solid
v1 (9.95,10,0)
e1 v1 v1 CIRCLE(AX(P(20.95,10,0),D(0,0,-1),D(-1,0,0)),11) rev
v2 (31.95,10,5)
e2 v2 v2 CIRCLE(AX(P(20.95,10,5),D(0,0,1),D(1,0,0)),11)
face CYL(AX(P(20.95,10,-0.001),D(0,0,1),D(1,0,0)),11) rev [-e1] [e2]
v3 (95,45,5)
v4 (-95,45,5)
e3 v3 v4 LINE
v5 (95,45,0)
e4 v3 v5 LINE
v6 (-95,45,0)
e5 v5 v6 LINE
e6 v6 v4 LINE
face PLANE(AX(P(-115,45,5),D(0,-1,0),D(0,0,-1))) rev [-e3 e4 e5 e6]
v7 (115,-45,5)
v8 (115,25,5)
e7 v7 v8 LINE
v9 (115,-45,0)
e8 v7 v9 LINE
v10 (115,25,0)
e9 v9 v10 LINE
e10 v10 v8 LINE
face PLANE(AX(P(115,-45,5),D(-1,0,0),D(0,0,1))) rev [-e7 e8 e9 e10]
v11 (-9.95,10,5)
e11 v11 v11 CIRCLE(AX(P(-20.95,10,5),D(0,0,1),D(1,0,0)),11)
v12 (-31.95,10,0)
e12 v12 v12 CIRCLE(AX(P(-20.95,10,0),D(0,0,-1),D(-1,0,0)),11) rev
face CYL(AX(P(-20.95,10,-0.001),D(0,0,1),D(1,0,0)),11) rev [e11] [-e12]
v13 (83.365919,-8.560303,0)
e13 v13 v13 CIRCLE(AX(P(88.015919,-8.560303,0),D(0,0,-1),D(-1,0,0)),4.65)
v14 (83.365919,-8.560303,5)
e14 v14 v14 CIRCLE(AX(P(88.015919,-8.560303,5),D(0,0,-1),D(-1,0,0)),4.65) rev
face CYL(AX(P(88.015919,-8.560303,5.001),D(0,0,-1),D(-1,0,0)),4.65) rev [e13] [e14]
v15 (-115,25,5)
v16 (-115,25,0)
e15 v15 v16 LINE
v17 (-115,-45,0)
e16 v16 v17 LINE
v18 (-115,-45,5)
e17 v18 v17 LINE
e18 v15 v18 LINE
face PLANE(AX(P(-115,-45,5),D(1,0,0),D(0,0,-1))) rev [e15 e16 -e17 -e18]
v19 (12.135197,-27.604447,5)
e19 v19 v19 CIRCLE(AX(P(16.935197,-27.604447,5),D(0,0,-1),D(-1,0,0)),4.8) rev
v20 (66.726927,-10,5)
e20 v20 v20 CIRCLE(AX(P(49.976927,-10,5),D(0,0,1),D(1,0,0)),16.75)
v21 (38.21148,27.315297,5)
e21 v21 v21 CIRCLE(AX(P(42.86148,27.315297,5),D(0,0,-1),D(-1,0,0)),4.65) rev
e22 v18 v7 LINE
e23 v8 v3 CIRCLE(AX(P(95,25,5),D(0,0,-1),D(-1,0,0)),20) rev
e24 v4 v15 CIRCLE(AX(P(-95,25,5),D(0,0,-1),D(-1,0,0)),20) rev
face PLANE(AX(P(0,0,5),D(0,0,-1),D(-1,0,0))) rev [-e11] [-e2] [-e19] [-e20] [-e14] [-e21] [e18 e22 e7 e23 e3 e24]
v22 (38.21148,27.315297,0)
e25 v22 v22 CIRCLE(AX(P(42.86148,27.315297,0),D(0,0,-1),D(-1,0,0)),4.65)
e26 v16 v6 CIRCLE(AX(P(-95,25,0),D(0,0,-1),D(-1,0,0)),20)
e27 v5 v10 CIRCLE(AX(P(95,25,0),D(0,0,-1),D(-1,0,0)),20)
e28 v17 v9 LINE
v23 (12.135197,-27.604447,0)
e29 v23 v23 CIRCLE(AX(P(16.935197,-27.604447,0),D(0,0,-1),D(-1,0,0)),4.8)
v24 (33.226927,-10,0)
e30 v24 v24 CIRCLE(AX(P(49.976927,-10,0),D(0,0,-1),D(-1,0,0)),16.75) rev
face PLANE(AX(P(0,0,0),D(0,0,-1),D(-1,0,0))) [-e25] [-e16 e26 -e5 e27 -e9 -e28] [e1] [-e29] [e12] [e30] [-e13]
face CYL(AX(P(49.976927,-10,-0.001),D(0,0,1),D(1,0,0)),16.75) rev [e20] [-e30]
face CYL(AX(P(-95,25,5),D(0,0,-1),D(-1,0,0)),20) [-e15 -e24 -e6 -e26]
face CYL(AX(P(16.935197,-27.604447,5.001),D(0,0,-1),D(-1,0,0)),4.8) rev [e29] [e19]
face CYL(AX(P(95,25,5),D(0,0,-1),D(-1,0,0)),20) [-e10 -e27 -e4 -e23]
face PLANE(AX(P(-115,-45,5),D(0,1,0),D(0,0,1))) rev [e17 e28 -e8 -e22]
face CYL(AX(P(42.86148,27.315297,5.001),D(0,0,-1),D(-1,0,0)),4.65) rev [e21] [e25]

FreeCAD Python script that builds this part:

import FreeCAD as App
import Part
import Sketcher
Q = App.Units.Quantity


def edges_at(feature, points):
    """Names of the edges that pass closest to the given points."""
    edges = feature.Shape.Edges
    near = lambda p: min(range(len(edges)), key=lambda i: edges[i].distToShape(Part.Vertex(*p))[0])
    return sorted({f"Edge{near(p) + 1}" for p in points})


def add_polygon(sketch, points):
    """Adds a closed chain of lines whose ends are joined by coincident constraints."""
    first, n = sketch.GeometryCount, len(points)
    for a, b in zip(points, points[1:] + points[:1]):
        sketch.addGeometry(Part.LineSegment(App.Vector(*a, 0), App.Vector(*b, 0)), False)
    for i in range(n):
        sketch.addConstraint(Sketcher.Constraint("Coincident", first + i, 2, first + (i + 1) % n, 1))

doc = App.newDocument("Part")
body = doc.addObject("PartDesign::Body", "Body")

# Sketch on XY plane
sketch1 = body.newObject("Sketcher::SketchObject", "Sketch")
sketch1.AttachmentSupport = (doc.getObject("XY_Plane"), [""])
sketch1.MapMode = "FlatFace"
add_polygon(sketch1, [(-115, 45), (-115, -45), (115, -45), (115, 45)])  # lines 0-3
sketch1.addConstraint([
    Sketcher.Constraint("Vertical", 0),
    Sketcher.Constraint("Horizontal", 1),
    Sketcher.Constraint("Vertical", 2),
    Sketcher.Constraint("Horizontal", 3),
    Sketcher.Constraint("Symmetric", 0, 2, 2, 2, -1, 1),
    Sketcher.Constraint("DistanceX", 1, 1, 1, 2, Q("230 mm")),
    Sketcher.Constraint("DistanceY", 0, 2, 0, 1, Q("90 mm")),
])
pad1 = body.newObject("PartDesign::Pad", "Pad")
pad1.Profile = sketch1
pad1.Length = 5
doc.recompute()

fillet = body.newObject("PartDesign::Fillet", "Fillet")
fillet.Base = (pad1, edges_at(pad1, [(-115, 45, 2.5), (115, 45, 2.5)]))
fillet.Radius = 20

# Sketch on XY plane
sketch2 = body.newObject("Sketcher::SketchObject", "Sketch001")
sketch2.AttachmentSupport = (doc.getObject("XY_Plane"), [""])
sketch2.MapMode = "FlatFace"
sketch2.AttachmentOffset = App.Placement(App.Vector(0, 0, 5), App.Rotation())
sketch2.addGeometry(Part.Circle(App.Vector(-20.95, 10, 0), App.Vector(0, 0, 1), 11), False)
sketch2.addConstraint([
    Sketcher.Constraint("Diameter", 0, Q("22 mm")),
    Sketcher.Constraint("DistanceY", -1, 1, 0, 3, Q("10 mm")),
    Sketcher.Constraint("DistanceX", 0, 3, -1, 1, Q("20.95 mm")),
])
pocket1 = body.newObject("PartDesign::Pocket", "Pocket")
pocket1.Profile = sketch2
pocket1.Type = "UpToFirst"

# Sketch on XY plane
sketch3 = body.newObject("Sketcher::SketchObject", "Sketch002")
sketch3.AttachmentSupport = (doc.getObject("XY_Plane"), [""])
sketch3.MapMode = "FlatFace"
sketch3.AttachmentOffset = App.Placement(App.Vector(0, 0, 5), App.Rotation())
sketch3.addGeometry(Part.Circle(App.Vector(20.95, 10, 0), App.Vector(0, 0, 1), 11), False)
sketch3.addConstraint([
    Sketcher.Constraint("Diameter", 0, Q("22 mm")),
    Sketcher.Constraint("DistanceY", -1, 1, 0, 3, Q("10 mm")),
    Sketcher.Constraint("DistanceX", -1, 1, 0, 3, Q("20.95 mm")),
])
pocket2 = body.newObject("PartDesign::Pocket", "Pocket001")
pocket2.Profile = sketch3
pocket2.Type = "UpToFirst"

# Sketch on XY plane
sketch4 = body.newObject("Sketcher::SketchObject", "Sketch003")
sketch4.AttachmentSupport = (doc.getObject("XY_Plane"), [""])
sketch4.MapMode = "FlatFace"
sketch4.AttachmentOffset = App.Placement(App.Vector(0, 0, 5), App.Rotation())
sketch4.addGeometry(Part.Circle(App.Vector(49.976927, -10, 0), App.Vector(0, 0, 1), 16.75), False)
sketch4.addConstraint([
    Sketcher.Constraint("Diameter", 0, Q("33.5 mm")),
    Sketcher.Constraint("DistanceY", 0, 3, -1, 1, Q("10 mm")),
    Sketcher.Constraint("DistanceX", -1, 1, 0, 3, Q("49.976927 mm")),
])
pocket3 = body.newObject("PartDesign::Pocket", "Pocket002")
pocket3.Profile = sketch4
pocket3.Type = "UpToFirst"

# Sketch on XY plane
sketch5 = body.newObject("Sketcher::SketchObject", "Sketch004")
sketch5.AttachmentSupport = (doc.getObject("XY_Plane"), [""])
sketch5.MapMode = "FlatFace"
sketch5.addGeometry(Part.Circle(App.Vector(42.86148, 27.315297, 0), App.Vector(0, 0, 1), 4.65), False)
sketch5.addConstraint([
    Sketcher.Constraint("Diameter", 0, Q("9.3 mm")),
    Sketcher.Constraint("DistanceX", -1, 1, 0, 3, Q("42.86148 mm")),
    Sketcher.Constraint("DistanceY", -1, 1, 0, 3, Q("27.315297 mm")),
])
pocket4 = body.newObject("PartDesign::Pocket", "Pocket003")
pocket4.Profile = sketch5
pocket4.Type = "UpToFirst"
pocket4.Reversed = True

# Sketch on XY plane
sketch6 = body.newObject("Sketcher::SketchObject", "Sketch005")
sketch6.AttachmentSupport = (doc.getObject("XY_Plane"), [""])
sketch6.MapMode = "FlatFace"
sketch6.addGeometry(Part.Circle(App.Vector(88.015919, -8.560303, 0), App.Vector(0, 0, 1), 4.65), False)
sketch6.addConstraint([
    Sketcher.Constraint("Diameter", 0, Q("9.3 mm")),
    Sketcher.Constraint("DistanceX", -1, 1, 0, 3, Q("88.015919 mm")),
    Sketcher.Constraint("DistanceY", 0, 3, -1, 1, Q("8.560303 mm")),
])
pocket5 = body.newObject("PartDesign::Pocket", "Pocket004")
pocket5.Profile = sketch6
pocket5.Type = "UpToFirst"
pocket5.Reversed = True

# Sketch on XY plane
sketch7 = body.newObject("Sketcher::SketchObject", "Sketch006")
sketch7.AttachmentSupport = (doc.getObject("XY_Plane"), [""])
sketch7.MapMode = "FlatFace"
sketch7.addGeometry(Part.Circle(App.Vector(16.935197, -27.604447, 0), App.Vector(0, 0, 1), 4.8), False)
sketch7.addConstraint([
    Sketcher.Constraint("Diameter", 0, Q("9.6 mm")),
    Sketcher.Constraint("DistanceX", -1, 1, 0, 3, Q("16.935197 mm")),
    Sketcher.Constraint("DistanceY", 0, 3, -1, 1, Q("27.604447 mm")),
])
pocket6 = body.newObject("PartDesign::Pocket", "Pocket005")
pocket6.Profile = sketch7
pocket6.Type = "UpToFirst"
pocket6.Reversed = True

doc.recompute()
